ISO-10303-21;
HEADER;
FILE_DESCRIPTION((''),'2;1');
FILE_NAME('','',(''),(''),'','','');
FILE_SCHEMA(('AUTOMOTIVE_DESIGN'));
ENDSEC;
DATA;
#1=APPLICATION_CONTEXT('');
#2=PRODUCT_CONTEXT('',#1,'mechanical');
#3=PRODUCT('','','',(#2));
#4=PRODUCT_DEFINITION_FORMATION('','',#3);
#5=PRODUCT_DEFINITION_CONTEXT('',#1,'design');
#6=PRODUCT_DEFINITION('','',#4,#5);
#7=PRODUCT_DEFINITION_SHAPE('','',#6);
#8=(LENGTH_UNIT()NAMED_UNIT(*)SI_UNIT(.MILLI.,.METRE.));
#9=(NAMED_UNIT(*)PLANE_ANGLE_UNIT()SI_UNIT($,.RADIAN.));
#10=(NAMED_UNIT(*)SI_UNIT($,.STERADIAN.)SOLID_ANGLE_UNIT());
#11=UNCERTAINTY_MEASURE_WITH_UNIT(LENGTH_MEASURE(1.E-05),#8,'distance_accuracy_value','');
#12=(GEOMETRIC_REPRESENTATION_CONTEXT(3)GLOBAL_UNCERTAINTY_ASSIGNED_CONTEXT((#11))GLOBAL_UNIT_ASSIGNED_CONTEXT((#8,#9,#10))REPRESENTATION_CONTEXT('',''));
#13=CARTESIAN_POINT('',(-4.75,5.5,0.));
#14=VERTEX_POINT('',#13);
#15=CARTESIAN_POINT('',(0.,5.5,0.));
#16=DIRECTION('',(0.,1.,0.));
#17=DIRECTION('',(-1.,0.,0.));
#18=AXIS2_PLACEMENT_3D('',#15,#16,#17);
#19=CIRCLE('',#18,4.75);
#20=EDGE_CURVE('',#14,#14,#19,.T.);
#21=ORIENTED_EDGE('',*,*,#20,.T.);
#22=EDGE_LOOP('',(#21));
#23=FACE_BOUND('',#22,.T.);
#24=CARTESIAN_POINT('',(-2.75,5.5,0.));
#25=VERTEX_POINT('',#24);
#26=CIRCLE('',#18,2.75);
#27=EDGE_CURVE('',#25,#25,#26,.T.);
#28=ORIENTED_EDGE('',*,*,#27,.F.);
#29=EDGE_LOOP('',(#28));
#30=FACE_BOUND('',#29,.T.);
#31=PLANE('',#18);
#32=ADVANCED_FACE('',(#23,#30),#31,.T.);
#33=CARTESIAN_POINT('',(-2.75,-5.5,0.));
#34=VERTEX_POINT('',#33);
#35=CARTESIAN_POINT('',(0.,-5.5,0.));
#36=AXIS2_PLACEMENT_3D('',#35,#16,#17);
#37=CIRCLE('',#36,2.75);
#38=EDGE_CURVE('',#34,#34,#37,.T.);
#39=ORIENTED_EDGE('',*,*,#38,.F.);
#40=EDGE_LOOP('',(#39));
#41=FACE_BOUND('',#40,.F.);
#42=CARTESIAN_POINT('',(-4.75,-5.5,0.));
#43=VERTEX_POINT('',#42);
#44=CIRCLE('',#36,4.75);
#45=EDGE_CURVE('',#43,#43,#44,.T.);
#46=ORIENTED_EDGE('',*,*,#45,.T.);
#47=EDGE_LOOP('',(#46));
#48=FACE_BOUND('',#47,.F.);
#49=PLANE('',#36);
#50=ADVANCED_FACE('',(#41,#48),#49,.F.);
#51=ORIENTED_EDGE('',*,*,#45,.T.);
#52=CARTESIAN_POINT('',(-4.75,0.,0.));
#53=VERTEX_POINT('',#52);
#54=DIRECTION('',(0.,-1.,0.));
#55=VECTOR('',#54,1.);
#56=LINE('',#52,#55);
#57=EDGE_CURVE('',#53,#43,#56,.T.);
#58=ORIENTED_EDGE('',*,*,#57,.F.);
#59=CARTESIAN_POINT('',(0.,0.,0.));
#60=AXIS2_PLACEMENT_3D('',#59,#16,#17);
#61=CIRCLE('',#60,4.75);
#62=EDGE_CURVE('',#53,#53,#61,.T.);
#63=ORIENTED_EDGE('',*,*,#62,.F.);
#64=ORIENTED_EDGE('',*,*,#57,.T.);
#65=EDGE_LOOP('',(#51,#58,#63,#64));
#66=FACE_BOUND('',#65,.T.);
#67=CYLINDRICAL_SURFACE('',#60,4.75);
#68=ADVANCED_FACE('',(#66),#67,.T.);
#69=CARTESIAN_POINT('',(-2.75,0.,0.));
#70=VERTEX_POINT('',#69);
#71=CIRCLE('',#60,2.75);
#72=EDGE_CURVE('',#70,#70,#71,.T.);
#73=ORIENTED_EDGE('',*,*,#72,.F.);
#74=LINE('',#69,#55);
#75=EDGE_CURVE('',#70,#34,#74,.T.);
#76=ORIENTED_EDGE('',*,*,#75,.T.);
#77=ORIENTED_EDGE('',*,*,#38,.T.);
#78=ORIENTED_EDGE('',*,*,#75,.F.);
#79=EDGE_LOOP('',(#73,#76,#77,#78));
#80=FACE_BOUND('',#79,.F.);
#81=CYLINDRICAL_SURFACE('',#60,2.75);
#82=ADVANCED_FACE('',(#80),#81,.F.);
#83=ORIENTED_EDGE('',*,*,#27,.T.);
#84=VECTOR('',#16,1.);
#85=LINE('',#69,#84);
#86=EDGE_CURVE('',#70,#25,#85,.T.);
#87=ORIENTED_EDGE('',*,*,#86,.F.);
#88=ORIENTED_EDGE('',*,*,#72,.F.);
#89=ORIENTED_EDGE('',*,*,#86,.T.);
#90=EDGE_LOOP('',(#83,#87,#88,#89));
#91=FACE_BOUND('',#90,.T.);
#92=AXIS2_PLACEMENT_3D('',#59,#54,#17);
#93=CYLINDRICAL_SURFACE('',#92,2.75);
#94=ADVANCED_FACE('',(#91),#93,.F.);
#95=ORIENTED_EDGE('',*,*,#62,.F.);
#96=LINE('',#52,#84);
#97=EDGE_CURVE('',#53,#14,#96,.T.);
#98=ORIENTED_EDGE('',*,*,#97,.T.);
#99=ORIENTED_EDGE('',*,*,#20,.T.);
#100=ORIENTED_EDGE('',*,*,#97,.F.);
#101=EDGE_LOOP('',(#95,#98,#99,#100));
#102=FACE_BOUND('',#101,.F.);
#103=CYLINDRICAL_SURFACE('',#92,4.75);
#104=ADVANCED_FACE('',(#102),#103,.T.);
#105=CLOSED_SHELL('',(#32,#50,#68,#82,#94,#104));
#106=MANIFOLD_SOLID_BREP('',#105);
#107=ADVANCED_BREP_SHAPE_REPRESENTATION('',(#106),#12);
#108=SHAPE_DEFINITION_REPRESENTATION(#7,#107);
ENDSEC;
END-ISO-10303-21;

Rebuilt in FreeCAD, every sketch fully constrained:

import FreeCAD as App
import Part
import Sketcher
Q = App.Units.Quantity

doc = App.newDocument("Part")
body = doc.addObject("PartDesign::Body", "Body")

# Sketch on XZ plane
sketch1 = body.newObject("Sketcher::SketchObject", "Sketch")
sketch1.AttachmentSupport = (doc.getObject("XZ_Plane"), [""])
sketch1.MapMode = "FlatFace"
sketch1.addGeometry([
    Part.Circle(App.Vector(0, 0, 0), App.Vector(0, 0, 1), 4.8),
    Part.Circle(App.Vector(0, 0, 0), App.Vector(0, 0, 1), 2.8),
], False)
sketch1.addConstraint([
    Sketcher.Constraint("Coincident", 0, 3, -1, 1),
    Sketcher.Constraint("Coincident", 1, 3, -1, 1),
    Sketcher.Constraint("Diameter", 1, Q("5.5 mm")),
    Sketcher.Constraint("Diameter", 0, Q("9.5 mm")),
])
pad1 = body.newObject("PartDesign::Pad", "Pad")
pad1.Profile = sketch1
pad1.Length = 11
pad1.Midplane = True

doc.recompute()
